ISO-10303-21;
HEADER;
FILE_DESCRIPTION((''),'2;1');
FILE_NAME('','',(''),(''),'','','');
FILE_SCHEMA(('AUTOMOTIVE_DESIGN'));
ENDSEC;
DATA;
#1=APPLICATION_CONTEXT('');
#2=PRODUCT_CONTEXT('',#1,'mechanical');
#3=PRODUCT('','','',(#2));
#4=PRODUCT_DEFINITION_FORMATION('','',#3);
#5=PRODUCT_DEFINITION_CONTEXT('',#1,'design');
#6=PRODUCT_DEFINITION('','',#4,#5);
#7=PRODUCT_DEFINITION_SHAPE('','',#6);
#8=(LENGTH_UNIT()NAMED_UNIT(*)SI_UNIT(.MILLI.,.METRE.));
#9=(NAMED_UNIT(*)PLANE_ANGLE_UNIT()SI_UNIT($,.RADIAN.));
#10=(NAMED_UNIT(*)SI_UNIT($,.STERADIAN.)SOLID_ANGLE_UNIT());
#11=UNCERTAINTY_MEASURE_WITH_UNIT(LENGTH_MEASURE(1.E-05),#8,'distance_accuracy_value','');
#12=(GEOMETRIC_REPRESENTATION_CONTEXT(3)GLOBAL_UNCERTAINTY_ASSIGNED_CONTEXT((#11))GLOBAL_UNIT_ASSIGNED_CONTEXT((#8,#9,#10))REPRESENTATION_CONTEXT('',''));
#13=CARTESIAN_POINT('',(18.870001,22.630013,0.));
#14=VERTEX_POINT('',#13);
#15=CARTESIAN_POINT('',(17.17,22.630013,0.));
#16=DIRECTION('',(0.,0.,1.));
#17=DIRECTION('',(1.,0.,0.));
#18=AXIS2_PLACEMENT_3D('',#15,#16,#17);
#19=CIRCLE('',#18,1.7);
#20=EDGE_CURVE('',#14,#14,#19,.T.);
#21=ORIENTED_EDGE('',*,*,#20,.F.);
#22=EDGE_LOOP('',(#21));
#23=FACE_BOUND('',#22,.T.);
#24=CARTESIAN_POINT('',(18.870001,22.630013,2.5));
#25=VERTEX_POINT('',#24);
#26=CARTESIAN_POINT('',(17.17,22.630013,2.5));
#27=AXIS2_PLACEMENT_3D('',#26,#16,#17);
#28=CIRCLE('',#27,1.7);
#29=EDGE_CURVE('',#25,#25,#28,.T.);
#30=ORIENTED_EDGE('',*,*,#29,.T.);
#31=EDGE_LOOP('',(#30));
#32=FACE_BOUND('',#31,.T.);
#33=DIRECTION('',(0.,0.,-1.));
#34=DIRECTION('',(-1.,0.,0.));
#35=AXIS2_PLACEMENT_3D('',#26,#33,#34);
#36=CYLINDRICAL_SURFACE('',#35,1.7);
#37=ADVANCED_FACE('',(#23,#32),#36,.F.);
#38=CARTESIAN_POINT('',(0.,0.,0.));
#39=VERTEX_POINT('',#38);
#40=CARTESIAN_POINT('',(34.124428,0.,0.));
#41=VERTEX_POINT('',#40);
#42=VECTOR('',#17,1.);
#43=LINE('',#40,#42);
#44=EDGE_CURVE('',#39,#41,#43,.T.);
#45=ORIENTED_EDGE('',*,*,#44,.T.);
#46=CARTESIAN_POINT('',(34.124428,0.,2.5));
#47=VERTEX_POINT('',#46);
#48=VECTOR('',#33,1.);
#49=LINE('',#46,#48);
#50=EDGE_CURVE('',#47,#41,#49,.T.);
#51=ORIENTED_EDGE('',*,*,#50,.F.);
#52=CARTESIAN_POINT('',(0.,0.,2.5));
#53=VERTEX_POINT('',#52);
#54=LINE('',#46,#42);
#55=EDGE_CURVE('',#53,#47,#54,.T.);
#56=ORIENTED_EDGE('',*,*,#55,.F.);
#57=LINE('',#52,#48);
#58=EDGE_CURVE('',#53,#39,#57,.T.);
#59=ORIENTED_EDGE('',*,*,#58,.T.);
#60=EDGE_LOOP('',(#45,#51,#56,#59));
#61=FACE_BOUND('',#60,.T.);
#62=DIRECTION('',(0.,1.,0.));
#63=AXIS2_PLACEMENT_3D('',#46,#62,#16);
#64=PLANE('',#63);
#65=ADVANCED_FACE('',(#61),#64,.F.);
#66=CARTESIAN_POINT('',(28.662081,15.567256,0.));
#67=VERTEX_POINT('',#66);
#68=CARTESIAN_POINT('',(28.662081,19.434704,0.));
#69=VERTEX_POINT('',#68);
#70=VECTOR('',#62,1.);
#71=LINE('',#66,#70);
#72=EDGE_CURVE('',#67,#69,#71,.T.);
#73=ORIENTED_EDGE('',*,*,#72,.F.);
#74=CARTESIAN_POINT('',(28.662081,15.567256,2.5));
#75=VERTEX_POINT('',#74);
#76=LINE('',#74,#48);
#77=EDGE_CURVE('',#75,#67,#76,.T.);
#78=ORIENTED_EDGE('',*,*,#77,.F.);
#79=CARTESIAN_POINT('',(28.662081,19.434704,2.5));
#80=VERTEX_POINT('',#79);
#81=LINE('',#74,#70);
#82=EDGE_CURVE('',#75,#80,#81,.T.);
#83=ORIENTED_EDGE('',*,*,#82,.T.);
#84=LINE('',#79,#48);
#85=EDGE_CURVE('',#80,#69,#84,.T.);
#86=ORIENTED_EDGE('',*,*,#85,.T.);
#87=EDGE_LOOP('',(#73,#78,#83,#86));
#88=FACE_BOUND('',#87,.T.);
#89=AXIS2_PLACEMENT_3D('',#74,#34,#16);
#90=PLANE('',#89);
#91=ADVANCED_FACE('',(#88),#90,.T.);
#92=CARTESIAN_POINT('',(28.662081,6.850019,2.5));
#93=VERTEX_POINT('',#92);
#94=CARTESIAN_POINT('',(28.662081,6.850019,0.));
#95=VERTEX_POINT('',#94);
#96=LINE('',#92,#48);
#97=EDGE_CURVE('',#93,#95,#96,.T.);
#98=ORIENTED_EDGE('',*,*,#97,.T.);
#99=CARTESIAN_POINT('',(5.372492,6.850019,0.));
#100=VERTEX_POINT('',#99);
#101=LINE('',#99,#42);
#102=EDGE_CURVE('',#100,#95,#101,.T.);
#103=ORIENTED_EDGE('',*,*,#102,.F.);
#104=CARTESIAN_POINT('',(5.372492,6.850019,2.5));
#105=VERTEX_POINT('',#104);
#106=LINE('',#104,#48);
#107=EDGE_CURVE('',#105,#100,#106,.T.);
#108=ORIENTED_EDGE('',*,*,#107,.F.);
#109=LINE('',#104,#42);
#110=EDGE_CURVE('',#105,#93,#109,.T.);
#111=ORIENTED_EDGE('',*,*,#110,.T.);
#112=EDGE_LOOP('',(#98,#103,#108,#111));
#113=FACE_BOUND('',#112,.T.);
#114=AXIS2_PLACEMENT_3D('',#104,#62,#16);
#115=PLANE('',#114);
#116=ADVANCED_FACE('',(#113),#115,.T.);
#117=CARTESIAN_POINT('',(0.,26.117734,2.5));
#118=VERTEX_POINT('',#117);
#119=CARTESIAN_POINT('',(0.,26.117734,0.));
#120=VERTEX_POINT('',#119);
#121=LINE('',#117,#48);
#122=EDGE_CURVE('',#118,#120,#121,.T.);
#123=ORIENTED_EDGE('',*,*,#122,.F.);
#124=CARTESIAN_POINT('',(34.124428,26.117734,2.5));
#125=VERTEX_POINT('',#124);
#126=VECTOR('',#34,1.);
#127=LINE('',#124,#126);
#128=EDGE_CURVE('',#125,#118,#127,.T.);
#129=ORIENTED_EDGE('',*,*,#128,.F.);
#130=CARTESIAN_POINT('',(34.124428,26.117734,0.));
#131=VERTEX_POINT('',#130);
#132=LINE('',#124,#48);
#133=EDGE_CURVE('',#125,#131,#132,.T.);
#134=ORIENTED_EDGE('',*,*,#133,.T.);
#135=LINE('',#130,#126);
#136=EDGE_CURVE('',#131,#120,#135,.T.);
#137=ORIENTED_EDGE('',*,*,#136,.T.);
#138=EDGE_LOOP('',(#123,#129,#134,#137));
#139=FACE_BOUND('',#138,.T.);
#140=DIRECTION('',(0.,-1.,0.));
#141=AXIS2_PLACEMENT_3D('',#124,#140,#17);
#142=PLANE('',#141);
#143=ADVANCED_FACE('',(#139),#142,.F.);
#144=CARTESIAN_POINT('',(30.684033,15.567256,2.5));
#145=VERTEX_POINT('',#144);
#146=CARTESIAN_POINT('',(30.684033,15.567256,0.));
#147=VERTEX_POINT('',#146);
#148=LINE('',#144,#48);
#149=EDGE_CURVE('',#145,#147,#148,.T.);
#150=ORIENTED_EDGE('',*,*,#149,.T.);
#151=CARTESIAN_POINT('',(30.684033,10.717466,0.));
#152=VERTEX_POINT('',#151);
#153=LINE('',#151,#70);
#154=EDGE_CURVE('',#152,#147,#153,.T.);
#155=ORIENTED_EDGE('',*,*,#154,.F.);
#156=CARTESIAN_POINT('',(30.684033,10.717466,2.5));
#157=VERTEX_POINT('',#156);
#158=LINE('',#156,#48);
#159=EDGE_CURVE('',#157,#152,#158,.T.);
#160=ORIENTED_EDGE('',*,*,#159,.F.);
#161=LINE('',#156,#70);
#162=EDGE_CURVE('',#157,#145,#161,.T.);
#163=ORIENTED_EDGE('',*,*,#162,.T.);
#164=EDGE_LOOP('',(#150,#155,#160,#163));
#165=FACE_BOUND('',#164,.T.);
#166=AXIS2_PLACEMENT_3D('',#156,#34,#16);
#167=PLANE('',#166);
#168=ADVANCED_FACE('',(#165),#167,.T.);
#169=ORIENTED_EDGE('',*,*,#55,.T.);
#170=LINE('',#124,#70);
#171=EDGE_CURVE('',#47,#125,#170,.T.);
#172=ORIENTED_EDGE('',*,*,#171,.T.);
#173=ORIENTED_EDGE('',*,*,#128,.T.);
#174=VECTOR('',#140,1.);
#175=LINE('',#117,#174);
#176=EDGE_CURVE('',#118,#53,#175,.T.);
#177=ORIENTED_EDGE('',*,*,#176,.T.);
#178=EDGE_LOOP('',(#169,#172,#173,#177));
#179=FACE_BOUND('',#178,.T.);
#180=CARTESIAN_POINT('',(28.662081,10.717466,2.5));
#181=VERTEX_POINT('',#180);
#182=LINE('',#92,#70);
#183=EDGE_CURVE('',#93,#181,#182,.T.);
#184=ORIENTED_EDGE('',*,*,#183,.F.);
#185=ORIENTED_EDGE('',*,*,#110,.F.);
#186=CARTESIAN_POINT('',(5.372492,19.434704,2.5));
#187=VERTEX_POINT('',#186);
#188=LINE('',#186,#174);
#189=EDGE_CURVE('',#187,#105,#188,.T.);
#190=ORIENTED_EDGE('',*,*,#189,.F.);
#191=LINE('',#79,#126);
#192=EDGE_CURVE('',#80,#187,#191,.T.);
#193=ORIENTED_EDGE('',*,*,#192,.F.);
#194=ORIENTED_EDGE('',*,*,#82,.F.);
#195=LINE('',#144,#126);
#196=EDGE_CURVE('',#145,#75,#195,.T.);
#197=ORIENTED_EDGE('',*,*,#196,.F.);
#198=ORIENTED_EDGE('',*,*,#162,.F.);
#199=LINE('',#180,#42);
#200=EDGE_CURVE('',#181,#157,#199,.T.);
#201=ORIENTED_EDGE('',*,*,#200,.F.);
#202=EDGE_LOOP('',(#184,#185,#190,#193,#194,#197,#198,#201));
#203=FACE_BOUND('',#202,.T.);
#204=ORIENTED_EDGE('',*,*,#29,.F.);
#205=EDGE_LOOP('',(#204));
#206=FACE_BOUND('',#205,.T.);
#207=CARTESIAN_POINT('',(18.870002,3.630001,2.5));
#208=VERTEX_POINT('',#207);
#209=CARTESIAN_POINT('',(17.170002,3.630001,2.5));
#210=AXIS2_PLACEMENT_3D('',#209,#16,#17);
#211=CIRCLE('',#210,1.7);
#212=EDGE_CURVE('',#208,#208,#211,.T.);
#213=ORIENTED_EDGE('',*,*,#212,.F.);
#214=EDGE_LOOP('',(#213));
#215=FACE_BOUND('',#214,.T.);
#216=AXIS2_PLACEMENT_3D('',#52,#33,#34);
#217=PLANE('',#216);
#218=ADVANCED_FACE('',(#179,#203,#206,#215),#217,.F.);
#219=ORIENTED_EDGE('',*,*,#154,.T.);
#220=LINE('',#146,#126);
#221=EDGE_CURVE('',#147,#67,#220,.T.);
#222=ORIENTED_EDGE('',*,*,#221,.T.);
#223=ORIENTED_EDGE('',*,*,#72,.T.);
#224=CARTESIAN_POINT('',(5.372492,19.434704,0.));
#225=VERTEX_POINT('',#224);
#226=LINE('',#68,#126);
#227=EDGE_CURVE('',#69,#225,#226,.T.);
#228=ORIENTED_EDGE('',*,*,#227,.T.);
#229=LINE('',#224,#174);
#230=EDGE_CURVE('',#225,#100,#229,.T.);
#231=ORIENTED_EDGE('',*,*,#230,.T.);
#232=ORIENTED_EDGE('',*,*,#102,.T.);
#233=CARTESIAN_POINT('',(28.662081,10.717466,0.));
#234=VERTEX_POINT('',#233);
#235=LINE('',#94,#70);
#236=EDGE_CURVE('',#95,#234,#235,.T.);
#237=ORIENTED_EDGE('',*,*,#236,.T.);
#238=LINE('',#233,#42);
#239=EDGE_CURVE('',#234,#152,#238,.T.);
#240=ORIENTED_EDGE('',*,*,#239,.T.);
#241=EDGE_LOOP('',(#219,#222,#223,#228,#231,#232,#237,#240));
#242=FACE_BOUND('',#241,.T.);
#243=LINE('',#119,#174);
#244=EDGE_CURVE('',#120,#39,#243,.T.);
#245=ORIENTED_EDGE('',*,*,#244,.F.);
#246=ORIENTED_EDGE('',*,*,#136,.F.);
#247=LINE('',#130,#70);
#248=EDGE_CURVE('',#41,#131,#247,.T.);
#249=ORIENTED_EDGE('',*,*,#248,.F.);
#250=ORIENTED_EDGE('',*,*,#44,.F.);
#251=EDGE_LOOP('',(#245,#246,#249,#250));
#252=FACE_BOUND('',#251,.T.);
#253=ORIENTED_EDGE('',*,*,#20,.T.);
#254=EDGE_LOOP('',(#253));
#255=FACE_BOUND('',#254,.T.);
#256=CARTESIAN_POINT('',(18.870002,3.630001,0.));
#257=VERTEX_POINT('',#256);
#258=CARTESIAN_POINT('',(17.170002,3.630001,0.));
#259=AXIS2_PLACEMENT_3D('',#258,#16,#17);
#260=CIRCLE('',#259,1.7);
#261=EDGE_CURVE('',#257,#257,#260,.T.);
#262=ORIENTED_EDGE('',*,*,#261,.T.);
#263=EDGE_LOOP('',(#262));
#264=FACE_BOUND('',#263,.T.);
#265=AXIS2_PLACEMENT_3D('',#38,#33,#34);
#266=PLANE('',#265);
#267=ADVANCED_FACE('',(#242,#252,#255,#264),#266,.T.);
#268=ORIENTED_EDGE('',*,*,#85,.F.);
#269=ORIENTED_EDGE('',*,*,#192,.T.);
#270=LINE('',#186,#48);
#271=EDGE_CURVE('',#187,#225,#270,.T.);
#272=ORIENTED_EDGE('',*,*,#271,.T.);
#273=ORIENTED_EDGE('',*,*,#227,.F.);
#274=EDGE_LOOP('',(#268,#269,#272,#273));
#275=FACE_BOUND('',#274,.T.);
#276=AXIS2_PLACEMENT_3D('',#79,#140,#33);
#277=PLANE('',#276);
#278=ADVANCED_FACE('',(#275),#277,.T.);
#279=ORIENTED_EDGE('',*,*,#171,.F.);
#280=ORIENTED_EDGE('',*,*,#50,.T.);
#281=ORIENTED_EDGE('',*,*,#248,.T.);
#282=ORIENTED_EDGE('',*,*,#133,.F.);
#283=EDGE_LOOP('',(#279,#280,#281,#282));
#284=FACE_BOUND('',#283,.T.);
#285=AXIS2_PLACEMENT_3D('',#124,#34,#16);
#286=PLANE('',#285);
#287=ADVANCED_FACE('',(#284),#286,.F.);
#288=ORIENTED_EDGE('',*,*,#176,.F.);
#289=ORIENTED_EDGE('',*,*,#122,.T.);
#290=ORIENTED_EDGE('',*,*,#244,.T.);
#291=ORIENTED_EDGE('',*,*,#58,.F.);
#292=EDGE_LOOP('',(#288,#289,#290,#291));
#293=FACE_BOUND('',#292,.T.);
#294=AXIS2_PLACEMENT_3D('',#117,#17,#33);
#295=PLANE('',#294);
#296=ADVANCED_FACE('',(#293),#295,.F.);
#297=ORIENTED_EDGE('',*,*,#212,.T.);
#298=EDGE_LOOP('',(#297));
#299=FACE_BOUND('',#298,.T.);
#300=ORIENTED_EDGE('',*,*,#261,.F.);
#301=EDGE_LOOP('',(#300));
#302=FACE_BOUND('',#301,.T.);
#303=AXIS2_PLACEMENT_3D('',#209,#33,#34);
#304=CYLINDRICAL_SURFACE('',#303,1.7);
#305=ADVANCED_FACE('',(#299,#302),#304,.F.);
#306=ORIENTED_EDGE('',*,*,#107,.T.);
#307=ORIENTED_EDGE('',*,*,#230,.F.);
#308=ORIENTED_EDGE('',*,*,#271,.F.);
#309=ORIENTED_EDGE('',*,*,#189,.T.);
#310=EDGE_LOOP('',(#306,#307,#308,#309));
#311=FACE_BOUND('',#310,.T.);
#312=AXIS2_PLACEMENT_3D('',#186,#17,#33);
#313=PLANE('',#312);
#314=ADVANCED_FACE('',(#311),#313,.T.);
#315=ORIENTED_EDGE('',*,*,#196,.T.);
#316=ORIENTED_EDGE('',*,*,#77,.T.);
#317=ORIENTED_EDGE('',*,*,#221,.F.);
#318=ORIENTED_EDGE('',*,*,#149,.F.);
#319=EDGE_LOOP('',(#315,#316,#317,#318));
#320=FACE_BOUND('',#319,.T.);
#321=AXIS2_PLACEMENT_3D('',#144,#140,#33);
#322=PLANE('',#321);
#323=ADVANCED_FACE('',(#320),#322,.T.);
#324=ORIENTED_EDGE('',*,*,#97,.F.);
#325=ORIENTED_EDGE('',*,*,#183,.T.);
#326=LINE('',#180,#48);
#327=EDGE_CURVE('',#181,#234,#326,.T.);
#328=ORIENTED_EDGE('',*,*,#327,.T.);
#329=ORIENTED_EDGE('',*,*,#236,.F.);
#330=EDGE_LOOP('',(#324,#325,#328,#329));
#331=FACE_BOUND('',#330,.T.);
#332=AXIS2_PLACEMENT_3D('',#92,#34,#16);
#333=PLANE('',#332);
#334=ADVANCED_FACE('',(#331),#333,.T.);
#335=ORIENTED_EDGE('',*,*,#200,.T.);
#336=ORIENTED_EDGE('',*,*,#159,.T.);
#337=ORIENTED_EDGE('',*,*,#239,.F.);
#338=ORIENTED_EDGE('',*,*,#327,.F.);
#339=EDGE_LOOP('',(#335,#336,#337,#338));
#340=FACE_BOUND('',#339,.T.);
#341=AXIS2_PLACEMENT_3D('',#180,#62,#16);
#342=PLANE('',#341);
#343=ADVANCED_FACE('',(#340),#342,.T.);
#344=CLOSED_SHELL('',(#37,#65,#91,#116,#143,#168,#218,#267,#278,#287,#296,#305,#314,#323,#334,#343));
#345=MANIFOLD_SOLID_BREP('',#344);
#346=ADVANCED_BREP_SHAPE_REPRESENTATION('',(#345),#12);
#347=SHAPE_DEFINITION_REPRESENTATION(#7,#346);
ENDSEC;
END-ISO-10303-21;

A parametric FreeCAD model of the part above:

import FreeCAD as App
import Part
import Sketcher


def add_polygon(sketch, points):
    """Adds a closed chain of lines whose ends are joined by coincident constraints."""
    first, n = sketch.GeometryCount, len(points)
    for a, b in zip(points, points[1:] + points[:1]):
        sketch.addGeometry(Part.LineSegment(App.Vector(*a, 0), App.Vector(*b, 0)), False)
    for i in range(n):
        sketch.addConstraint(Sketcher.Constraint("Coincident", first + i, 2, first + (i + 1) % n, 1))

doc = App.newDocument("Part")
body = doc.addObject("PartDesign::Body", "Body")

# Sketch on XY plane
sketch1 = body.newObject("Sketcher::SketchObject", "Sketch")
sketch1.AttachmentSupport = (doc.getObject("XY_Plane"), [""])
sketch1.MapMode = "FlatFace"
add_polygon(sketch1, [(0, 26.117734), (0, 0), (34.124428, 0), (34.124428, 26.117734)])  # lines 0-3
sketch1.addGeometry(Part.Circle(App.Vector(17.170002, 3.630001, 0), App.Vector(0, 0, 1), 1.7), False)  # 4
sketch1.addGeometry(Part.Circle(App.Vector(17.17, 22.630013, 0), App.Vector(0, 0, 1), 1.7), False)  # 5
add_polygon(sketch1, [(28.662081, 15.567256), (30.684033, 15.567256), (30.684033, 10.717466), (28.662081, 10.717466), (28.662081, 6.850019), (5.372492, 6.850019), (5.372492, 19.434704), (28.662081, 19.434704)])  # lines 6-13
sketch1.addConstraint([
    Sketcher.Constraint("Vertical", 0),
    Sketcher.Constraint("Horizontal", 1),
    Sketcher.Constraint("Vertical", 2),
    Sketcher.Constraint("Horizontal", 3),
    Sketcher.Constraint("Horizontal", 6),
    Sketcher.Constraint("Vertical", 7),
    Sketcher.Constraint("Horizontal", 8),
    Sketcher.Constraint("Vertical", 9),
    Sketcher.Constraint("Horizontal", 10),
    Sketcher.Constraint("Vertical", 11),
    Sketcher.Constraint("Horizontal", 12),
    Sketcher.Constraint("Vertical", 13),
    Sketcher.Constraint("Coincident", 0, 2, -1, 1),
    Sketcher.Constraint("Equal", 4, 5),
    Sketcher.Constraint("Vertical", 4, 3, 5, 3),
    Sketcher.Constraint("Vertical", 9, 2, 12, 2),
    Sketcher.Constraint("Equal", 9, 13),
    Sketcher.Constraint("Diameter", 4, 3.400001),
    Sketcher.Constraint("DistanceX", -1, 1, 4, 3, 17.170002),
    Sketcher.Constraint("DistanceY", -1, 1, 4, 3, 3.630001),
    Sketcher.Constraint("DistanceX", 6, 1, 6, 2, 2.021951),
    Sketcher.Constraint("DistanceX", 10, 2, 10, 1, 23.289589),
    Sketcher.Constraint("DistanceY", 7, 2, 7, 1, 4.84979),
    Sketcher.Constraint("DistanceX", 1, 1, 1, 2, 34.124428),
    Sketcher.Constraint("DistanceY", 0, 2, 0, 1, 26.117734),
    Sketcher.Constraint("DistanceY", 9, 2, 9, 1, 3.867448),
    Sketcher.Constraint("DistanceX", -1, 1, 8, 2, 28.662081),
    Sketcher.Constraint("DistanceY", -1, 1, 9, 2, 6.850019),
    Sketcher.Constraint("DistanceY", 5, 3, 2, 2, 3.487721),
])
pad1 = body.newObject("PartDesign::Pad", "Pad")
pad1.Profile = sketch1
pad1.Length = 2.5

doc.recompute()
